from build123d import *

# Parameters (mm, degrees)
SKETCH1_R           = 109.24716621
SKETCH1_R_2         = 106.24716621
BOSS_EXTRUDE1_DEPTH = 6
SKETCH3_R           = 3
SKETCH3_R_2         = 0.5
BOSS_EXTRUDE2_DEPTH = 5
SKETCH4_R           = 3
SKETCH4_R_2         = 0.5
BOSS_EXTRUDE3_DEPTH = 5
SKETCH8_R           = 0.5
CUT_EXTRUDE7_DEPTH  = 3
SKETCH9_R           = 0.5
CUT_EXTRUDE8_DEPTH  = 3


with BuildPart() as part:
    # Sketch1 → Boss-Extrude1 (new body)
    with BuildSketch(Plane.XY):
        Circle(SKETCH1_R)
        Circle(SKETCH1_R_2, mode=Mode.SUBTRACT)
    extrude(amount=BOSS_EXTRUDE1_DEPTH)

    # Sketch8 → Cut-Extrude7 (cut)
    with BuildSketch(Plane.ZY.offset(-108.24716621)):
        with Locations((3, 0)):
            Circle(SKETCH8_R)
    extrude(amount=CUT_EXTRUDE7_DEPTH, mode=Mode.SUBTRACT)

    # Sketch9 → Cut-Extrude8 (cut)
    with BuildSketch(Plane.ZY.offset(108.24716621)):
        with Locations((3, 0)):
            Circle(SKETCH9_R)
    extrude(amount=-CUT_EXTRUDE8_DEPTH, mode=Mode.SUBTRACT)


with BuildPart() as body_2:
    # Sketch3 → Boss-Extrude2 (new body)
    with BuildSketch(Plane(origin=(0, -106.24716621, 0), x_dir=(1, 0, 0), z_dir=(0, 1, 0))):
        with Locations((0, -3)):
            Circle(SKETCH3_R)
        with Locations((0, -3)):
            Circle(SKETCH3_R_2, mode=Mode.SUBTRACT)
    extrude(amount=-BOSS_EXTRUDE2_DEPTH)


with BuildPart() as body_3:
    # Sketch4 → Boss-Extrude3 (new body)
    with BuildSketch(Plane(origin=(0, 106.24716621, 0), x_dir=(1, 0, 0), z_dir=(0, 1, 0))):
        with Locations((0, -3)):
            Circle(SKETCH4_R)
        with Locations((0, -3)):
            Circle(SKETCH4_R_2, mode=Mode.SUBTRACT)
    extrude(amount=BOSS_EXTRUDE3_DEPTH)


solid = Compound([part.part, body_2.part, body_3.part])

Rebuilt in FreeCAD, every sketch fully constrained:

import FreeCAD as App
import Part
import Sketcher
from FreeCAD import Vector

doc = App.newDocument("Part")
params = doc.addObject("Spreadsheet::Sheet", "Params")
for row, (alias, value) in enumerate([
    ("pad1_length", "6 mm"),
    ("sketch2_diameter", "1 mm"),
    ("pocket1_length", "3 mm"),
    ("sketch3_diameter", "1 mm"),
    ("pocket2_length", "3 mm"),
    ("sketch4_diameter", "6 mm"),
    ("sketch4_diameter2", "1 mm"),
    ("pad2_length", "5 mm"),
    ("sketch5_diameter", "6 mm"),
    ("sketch5_diameter2", "1 mm"),
    ("pad3_length", "5 mm"),
], start=1):
    params.set(f"A{row}", alias)
    params.set(f"B{row}", "=" + value)
    params.setAlias(f"B{row}", alias)

body = doc.addObject("PartDesign::Body", "Body")

sketch1 = body.newObject("Sketcher::SketchObject", "Sketch")
sketch1.AttachmentSupport = (doc.getObject("XY_Plane"), [""])
sketch1.MapMode = "FlatFace"
sketch1.addGeometry([
    Part.Circle(Vector(0, 0, 0), Vector(0, 0, 1), 109.247166),
    Part.Circle(Vector(0, 0, 0), Vector(0, 0, 1), 106.247166),
], False)
sketch1.addConstraint([
    Sketcher.Constraint("Coincident", 0, 3, -1, 1),
    Sketcher.Constraint("Coincident", 1, 3, -1, 1),
    Sketcher.Constraint("Diameter", 0, 218.494332),
    Sketcher.Constraint("Diameter", 1, 212.494332),
])
pad1 = body.newObject("PartDesign::Pad", "Pad")
pad1.Profile = sketch1
pad1.setExpression("Length", "Params.pad1_length")

sketch2 = body.newObject("Sketcher::SketchObject", "Sketch001")
sketch2.AttachmentSupport = (doc.getObject("YZ_Plane"), [""])
sketch2.MapMode = "FlatFace"
sketch2.AttachmentOffset = App.Placement(Vector(0, 0, 108.247166), App.Rotation())
sketch2.addGeometry(Part.Circle(Vector(0, 3, 0), Vector(0, 0, 1), 0.5), False)
sketch2.addConstraint([
    Sketcher.Constraint("PointOnObject", 0, 3, -2),
    Sketcher.Constraint("Diameter", 0, 1.0),
    Sketcher.Constraint("DistanceY", -1, 1, 0, 3, 3.0),
])
sketch2.setExpression("Constraints[1]", "Params.sketch2_diameter")
pocket1 = body.newObject("PartDesign::Pocket", "Pocket")
pocket1.Profile = sketch2
pocket1.setExpression("Length", "Params.pocket1_length")

sketch3 = body.newObject("Sketcher::SketchObject", "Sketch002")
sketch3.AttachmentSupport = (doc.getObject("YZ_Plane"), [""])
sketch3.MapMode = "FlatFace"
sketch3.AttachmentOffset = App.Placement(Vector(0, 0, -108.247166), App.Rotation())
sketch3.addGeometry(Part.Circle(Vector(0, 3, 0), Vector(0, 0, 1), 0.5), False)
sketch3.addConstraint([
    Sketcher.Constraint("PointOnObject", 0, 3, -2),
    Sketcher.Constraint("Diameter", 0, 1.0),
    Sketcher.Constraint("DistanceY", -1, 1, 0, 3, 3.0),
])
sketch3.setExpression("Constraints[1]", "Params.sketch3_diameter")
pocket2 = body.newObject("PartDesign::Pocket", "Pocket001")
pocket2.Profile = sketch3
pocket2.setExpression("Length", "Params.pocket2_length")
pocket2.Reversed = True
body2 = doc.addObject("PartDesign::Body", "Body001")

sketch4 = body2.newObject("Sketcher::SketchObject", "Sketch003")
sketch4.AttachmentSupport = (doc.getObject("XZ_Plane001"), [""])
sketch4.MapMode = "FlatFace"
sketch4.AttachmentOffset = App.Placement(Vector(0, 0, 106.247166), App.Rotation())
sketch4.addGeometry([
    Part.Circle(Vector(0, 3, 0), Vector(0, 0, 1), 3),
    Part.Circle(Vector(0, 3, 0), Vector(0, 0, 1), 0.5),
], False)
sketch4.addConstraint([
    Sketcher.Constraint("Coincident", 1, 3, 0, 3),
    Sketcher.Constraint("PointOnObject", 0, 3, -2),
    Sketcher.Constraint("Diameter", 0, 6.0),
    Sketcher.Constraint("Diameter", 1, 1.0),
    Sketcher.Constraint("DistanceY", -1, 1, 0, 3, 3.0),
])
sketch4.setExpression("Constraints[2]", "Params.sketch4_diameter")
sketch4.setExpression("Constraints[3]", "Params.sketch4_diameter2")
pad2 = body2.newObject("PartDesign::Pad", "Pad001")
pad2.Profile = sketch4
pad2.setExpression("Length", "Params.pad2_length")
body3 = doc.addObject("PartDesign::Body", "Body002")

sketch5 = body3.newObject("Sketcher::SketchObject", "Sketch004")
sketch5.AttachmentSupport = (doc.getObject("XZ_Plane002"), [""])
sketch5.MapMode = "FlatFace"
sketch5.AttachmentOffset = App.Placement(Vector(0, 0, -106.247166), App.Rotation())
sketch5.addGeometry([
    Part.Circle(Vector(0, 3, 0), Vector(0, 0, 1), 3),
    Part.Circle(Vector(0, 3, 0), Vector(0, 0, 1), 0.5),
], False)
sketch5.addConstraint([
    Sketcher.Constraint("Coincident", 1, 3, 0, 3),
    Sketcher.Constraint("PointOnObject", 0, 3, -2),
    Sketcher.Constraint("Diameter", 0, 6.0),
    Sketcher.Constraint("Diameter", 1, 1.0),
    Sketcher.Constraint("DistanceY", -1, 1, 0, 3, 3.0),
])
sketch5.setExpression("Constraints[2]", "Params.sketch5_diameter")
sketch5.setExpression("Constraints[3]", "Params.sketch5_diameter2")
pad3 = body3.newObject("PartDesign::Pad", "Pad002")
pad3.Profile = sketch5
pad3.setExpression("Length", "Params.pad3_length")
pad3.Reversed = True

doc.recompute()
